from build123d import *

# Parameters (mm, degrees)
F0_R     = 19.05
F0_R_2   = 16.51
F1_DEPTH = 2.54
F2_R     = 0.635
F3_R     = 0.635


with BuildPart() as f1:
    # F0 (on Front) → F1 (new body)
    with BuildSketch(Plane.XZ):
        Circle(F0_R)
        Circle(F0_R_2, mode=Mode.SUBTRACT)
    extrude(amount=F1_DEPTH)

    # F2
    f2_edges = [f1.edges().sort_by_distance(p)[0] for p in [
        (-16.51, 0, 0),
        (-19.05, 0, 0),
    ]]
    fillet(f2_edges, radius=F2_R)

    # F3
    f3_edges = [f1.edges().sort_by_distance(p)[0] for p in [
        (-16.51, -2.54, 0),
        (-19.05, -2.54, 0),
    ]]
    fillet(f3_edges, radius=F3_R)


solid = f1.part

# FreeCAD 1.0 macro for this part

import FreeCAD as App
import Part
import Sketcher
Q = App.Units.Quantity


def edges_at(feature, points):
    """Names of the edges that pass closest to the given points."""
    edges = feature.Shape.Edges
    near = lambda p: min(range(len(edges)), key=lambda i: edges[i].distToShape(Part.Vertex(*p))[0])
    return sorted({f"Edge{near(p) + 1}" for p in points})

doc = App.newDocument("Part")
body = doc.addObject("PartDesign::Body", "Body")

sketch1 = doc.addObject("Sketcher::SketchObject", "Sketch")
body.addObject(sketch1)
sketch1.AttachmentSupport = (doc.XZ_Plane, [""])
sketch1.MapMode = "FlatFace"
sketch1.addGeometry([
    Part.Circle(App.Vector(0, 0, 0), App.Vector(0, 0, 1), 19),
    Part.Circle(App.Vector(0, 0, 0), App.Vector(0, 0, 1), 17),
], False)
sketch1.addConstraint([
    Sketcher.Constraint("Coincident", 0, 3, -1, 1),
    Sketcher.Constraint("Coincident", 1, 3, -1, 1),
    Sketcher.Constraint("Diameter", 0, Q("1.5 in")),
    Sketcher.Constraint("Diameter", 1, Q("1.3 in")),
])
pad1 = doc.addObject("PartDesign::Pad", "Pad")
body.addObject(pad1)
pad1.Profile = sketch1
pad1.Length = Q("0.1 in")
doc.recompute()

fillet = doc.addObject("PartDesign::Fillet", "Fillet")
body.addObject(fillet)
fillet.Base = (pad1, edges_at(pad1, [(-16.51, 0, 0), (-19.05, 0, 0)]))
fillet.Radius = Q("0.025 in")
doc.recompute()

fillet2 = doc.addObject("PartDesign::Fillet", "Fillet001")
body.addObject(fillet2)
fillet2.Base = (fillet, edges_at(fillet, [(-16.51, -2.54, 0), (-19.05, -2.54, 0)]))
fillet2.Radius = Q("0.025 in")

doc.recompute()
